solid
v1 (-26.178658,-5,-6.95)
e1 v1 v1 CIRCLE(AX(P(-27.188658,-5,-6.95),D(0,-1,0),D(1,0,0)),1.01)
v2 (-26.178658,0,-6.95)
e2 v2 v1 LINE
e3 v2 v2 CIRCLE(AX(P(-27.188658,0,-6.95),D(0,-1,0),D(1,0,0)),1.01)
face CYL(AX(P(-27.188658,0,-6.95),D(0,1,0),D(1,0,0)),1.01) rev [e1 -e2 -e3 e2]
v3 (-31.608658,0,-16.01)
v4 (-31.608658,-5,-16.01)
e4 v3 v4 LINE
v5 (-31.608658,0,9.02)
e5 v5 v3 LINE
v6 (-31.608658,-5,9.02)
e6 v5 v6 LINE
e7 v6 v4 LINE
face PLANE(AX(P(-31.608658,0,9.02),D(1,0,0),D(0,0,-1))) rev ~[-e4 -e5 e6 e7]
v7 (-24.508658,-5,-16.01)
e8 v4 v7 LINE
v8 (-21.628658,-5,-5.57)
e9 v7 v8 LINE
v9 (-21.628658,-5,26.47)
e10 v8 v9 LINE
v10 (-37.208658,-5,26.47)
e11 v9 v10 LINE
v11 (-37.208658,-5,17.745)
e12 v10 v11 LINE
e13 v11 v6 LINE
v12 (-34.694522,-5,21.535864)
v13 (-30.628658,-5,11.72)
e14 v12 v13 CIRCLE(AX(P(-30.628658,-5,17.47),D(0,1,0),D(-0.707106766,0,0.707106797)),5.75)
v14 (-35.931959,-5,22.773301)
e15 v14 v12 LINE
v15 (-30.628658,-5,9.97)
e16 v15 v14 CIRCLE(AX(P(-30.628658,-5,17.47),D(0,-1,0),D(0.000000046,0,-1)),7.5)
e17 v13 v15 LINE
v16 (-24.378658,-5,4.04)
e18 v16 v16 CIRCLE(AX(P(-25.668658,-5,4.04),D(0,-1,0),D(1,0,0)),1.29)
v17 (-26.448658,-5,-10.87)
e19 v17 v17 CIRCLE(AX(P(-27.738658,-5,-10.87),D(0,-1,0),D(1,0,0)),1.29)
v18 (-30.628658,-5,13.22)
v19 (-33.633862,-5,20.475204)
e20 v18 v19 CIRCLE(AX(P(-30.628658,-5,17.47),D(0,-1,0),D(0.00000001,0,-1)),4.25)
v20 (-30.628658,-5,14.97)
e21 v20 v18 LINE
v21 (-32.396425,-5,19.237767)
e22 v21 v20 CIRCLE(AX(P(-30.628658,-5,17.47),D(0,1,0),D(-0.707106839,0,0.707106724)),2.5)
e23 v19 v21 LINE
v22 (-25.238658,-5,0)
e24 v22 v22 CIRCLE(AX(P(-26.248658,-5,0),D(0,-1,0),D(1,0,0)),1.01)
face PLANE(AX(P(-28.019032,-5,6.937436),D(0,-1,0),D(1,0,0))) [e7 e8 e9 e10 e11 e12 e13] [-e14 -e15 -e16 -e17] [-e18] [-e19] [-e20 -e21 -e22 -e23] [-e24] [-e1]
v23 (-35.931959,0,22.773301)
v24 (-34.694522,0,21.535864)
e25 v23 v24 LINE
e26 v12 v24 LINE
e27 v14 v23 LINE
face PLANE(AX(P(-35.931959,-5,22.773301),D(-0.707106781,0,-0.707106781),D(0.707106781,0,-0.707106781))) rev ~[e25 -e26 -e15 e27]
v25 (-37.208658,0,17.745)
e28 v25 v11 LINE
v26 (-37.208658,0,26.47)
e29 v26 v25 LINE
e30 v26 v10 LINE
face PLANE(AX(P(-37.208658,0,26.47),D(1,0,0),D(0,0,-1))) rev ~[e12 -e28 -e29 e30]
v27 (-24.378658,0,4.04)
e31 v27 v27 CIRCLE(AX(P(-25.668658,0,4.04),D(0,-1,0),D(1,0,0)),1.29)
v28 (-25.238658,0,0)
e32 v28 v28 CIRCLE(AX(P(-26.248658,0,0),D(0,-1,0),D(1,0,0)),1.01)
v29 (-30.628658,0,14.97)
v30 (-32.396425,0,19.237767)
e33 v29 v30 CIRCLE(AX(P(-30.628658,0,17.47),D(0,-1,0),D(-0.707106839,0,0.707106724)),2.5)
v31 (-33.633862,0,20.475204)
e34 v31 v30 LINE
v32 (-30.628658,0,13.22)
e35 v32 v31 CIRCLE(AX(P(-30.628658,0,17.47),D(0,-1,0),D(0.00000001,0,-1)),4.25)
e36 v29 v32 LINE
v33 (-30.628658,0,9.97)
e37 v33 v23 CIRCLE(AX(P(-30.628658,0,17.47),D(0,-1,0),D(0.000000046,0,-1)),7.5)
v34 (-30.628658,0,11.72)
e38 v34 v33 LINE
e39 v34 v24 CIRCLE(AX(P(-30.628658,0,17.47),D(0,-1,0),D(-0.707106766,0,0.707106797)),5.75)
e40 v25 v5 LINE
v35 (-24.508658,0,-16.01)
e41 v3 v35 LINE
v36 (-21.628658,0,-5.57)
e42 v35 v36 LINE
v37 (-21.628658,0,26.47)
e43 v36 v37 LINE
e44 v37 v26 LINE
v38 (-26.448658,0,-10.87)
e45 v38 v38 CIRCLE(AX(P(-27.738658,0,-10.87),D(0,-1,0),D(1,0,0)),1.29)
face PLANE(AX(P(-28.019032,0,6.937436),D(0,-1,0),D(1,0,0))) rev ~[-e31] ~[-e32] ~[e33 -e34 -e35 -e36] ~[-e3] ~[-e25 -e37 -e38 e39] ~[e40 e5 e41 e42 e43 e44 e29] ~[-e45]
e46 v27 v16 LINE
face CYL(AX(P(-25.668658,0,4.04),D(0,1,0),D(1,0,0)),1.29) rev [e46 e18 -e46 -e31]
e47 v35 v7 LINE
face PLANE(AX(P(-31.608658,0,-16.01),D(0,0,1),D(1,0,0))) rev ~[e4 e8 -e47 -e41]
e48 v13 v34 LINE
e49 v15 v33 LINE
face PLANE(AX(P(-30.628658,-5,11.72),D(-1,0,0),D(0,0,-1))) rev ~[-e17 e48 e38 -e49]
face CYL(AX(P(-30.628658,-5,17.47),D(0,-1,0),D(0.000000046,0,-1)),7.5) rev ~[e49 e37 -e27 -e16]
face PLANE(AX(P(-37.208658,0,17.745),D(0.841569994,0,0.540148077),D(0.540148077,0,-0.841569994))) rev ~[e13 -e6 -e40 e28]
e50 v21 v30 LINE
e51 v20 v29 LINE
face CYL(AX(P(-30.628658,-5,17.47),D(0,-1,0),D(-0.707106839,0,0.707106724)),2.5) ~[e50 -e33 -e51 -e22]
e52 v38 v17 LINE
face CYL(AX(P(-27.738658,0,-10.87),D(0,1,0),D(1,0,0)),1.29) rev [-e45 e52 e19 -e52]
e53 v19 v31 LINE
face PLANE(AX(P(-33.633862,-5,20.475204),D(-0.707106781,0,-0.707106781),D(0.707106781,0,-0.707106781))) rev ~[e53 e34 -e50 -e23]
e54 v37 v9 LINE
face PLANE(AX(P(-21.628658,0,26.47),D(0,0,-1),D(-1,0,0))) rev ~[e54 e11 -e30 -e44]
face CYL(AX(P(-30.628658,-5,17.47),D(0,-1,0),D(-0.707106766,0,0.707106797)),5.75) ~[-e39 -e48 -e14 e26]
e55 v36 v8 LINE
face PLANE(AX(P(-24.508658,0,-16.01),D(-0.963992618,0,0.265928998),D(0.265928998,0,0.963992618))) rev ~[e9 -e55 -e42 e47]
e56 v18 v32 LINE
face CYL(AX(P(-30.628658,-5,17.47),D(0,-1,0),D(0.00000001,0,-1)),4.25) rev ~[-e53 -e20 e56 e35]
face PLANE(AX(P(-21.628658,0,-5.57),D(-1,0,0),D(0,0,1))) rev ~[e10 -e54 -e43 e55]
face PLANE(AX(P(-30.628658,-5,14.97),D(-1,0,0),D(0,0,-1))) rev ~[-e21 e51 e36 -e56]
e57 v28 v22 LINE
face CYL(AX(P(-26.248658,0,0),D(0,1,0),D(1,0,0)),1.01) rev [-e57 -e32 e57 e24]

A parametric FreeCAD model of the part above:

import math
import FreeCAD as App
import Part
import Sketcher

V = App.Vector
Q = App.Units.Quantity


def add_polygon(sketch, points):
    """Adds a closed chain of lines whose ends are joined by coincident constraints."""
    first, n = sketch.GeometryCount, len(points)
    for a, b in zip(points, points[1:] + points[:1]):
        sketch.addGeometry(Part.LineSegment(App.Vector(*a, 0), App.Vector(*b, 0)), False)
    for i in range(n):
        sketch.addConstraint(Sketcher.Constraint("Coincident", first + i, 2, first + (i + 1) % n, 1))

doc = App.newDocument("Part")
body = doc.addObject("PartDesign::Body", "Body")

# Sketch on XZ plane
sketch1 = body.newObject("Sketcher::SketchObject", "Sketch")
sketch1.AttachmentSupport = (doc.getObject("XZ_Plane"), [""])
sketch1.MapMode = "FlatFace"
add_polygon(sketch1, [(-21.6, 26.5), (-37.2, 26.5), (-37.2, 17.7), (-31.6, 9), (-31.6, -16), (-24.5, -16), (-21.6, -5.6)])  # lines 0-6
sketch1.addGeometry(Part.Circle(V(-27.7, -10.9, 0), V(0, 0, 1), 1.3), False)  # 7
sketch1.addGeometry(Part.Circle(V(-27.2, -7, 0), V(0, 0, 1), 1), False)  # 8
sketch1.addGeometry(Part.Circle(V(-26.2, 0, 0), V(0, 0, 1), 1), False)  # 9
sketch1.addGeometry(Part.Circle(V(-25.7, 4, 0), V(0, 0, 1), 1.3), False)  # 10
sketch1.addConstraint([
    Sketcher.Constraint("Horizontal", 0),
    Sketcher.Constraint("Vertical", 1),
    Sketcher.Constraint("Vertical", 3),
    Sketcher.Constraint("Horizontal", 4),
    Sketcher.Constraint("Vertical", 6),
    Sketcher.Constraint("Equal", 8, 9),
    Sketcher.Constraint("Equal", 7, 10),
    Sketcher.Constraint("PointOnObject", 9, 3, -1),
    Sketcher.Constraint("Diameter", 7, Q("2.58 mm")),
    Sketcher.Constraint("Diameter", 8, Q("2.02 mm")),
    Sketcher.Constraint("DistanceX", 4, 1, 4, 2, Q("7.1 mm")),
    Sketcher.Constraint("DistanceX", 0, 2, 0, 1, Q("15.58 mm")),
    Sketcher.Constraint("DistanceY", 3, 2, 3, 1, Q("25.03 mm")),
    Sketcher.Constraint("DistanceY", 6, 1, 6, 2, Q("32.04 mm")),
    Sketcher.Constraint("DistanceX", 1, 2, 2, 2, Q("5.6 mm")),
    Sketcher.Constraint("DistanceY", 7, 3, 5, 2, Q("5.3 mm")),
    Sketcher.Constraint("DistanceY", 1, 2, 1, 1, Q("8.725 mm")),
    Sketcher.Constraint("DistanceY", 7, 3, -1, 1, Q("10.87 mm")),
    Sketcher.Constraint("DistanceY", 8, 3, -1, 1, Q("6.95 mm")),
    Sketcher.Constraint("DistanceY", -1, 1, 10, 3, Q("4.04 mm")),
    Sketcher.Constraint("DistanceY", -1, 1, 2, 2, Q("9.02 mm")),
    Sketcher.Constraint("DistanceX", 7, 3, 8, 3, Q("0.55 mm")),
    Sketcher.Constraint("DistanceX", 8, 3, 9, 3, Q("0.94 mm")),
    Sketcher.Constraint("DistanceX", 9, 3, 10, 3, Q("0.58 mm")),
    Sketcher.Constraint("DistanceX", 0, 2, 10, 3, Q("11.54 mm")),
    Sketcher.Constraint("DistanceX", 7, 3, -1, 1, Q("27.738658 mm")),
])
pad1 = body.newObject("PartDesign::Pad", "Pad")
pad1.Profile = sketch1
pad1.Length = 5

# Sketch on XZ plane
sketch2 = body.newObject("Sketcher::SketchObject", "Sketch001")
sketch2.AttachmentSupport = (doc.getObject("XZ_Plane"), [""])
sketch2.MapMode = "FlatFace"
sketch2.AttachmentOffset = App.Placement(V(0, 0, 5), App.Rotation())
sketch2.addGeometry([
    Part.ArcOfCircle(Part.Circle(V(-30.6, 17.5, 0), V(0, 0, 1), 2.5), math.radians(-90), math.radians(135)),  # 0
    Part.LineSegment(V(-30.6, 15, 0), V(-30.6, 13.2, 0)),  # 1
    Part.ArcOfCircle(Part.Circle(V(-30.6, 17.5, 0), V(0, 0, 1), 4.3), math.radians(-90), math.radians(135)),  # 2
    Part.LineSegment(V(-33.6, 20.5, 0), V(-32.4, 19.2, 0)),  # 3
    Part.ArcOfCircle(Part.Circle(V(-30.6, 17.5, 0), V(0, 0, 1), 5.7), math.radians(-90), math.radians(135)),  # 4
    Part.LineSegment(V(-30.6, 11.7, 0), V(-30.6, 10, 0)),  # 5
    Part.ArcOfCircle(Part.Circle(V(-30.6, 17.5, 0), V(0, 0, 1), 7.5), math.radians(-90), math.radians(135)),  # 6
    Part.LineSegment(V(-35.9, 22.8, 0), V(-34.7, 21.5, 0)),  # 7
], False)
sketch2.addConstraint([
    Sketcher.Constraint("Coincident", 0, 1, 1, 1),
    Sketcher.Constraint("Coincident", 1, 2, 2, 1),
    Sketcher.Constraint("Coincident", 2, 2, 3, 1),
    Sketcher.Constraint("Coincident", 3, 2, 0, 2),
    Sketcher.Constraint("Coincident", 4, 1, 5, 1),
    Sketcher.Constraint("Coincident", 5, 2, 6, 1),
    Sketcher.Constraint("Coincident", 6, 2, 7, 1),
    Sketcher.Constraint("Coincident", 7, 2, 4, 2),
    Sketcher.Constraint("Vertical", 1),
    Sketcher.Constraint("Vertical", 5),
    Sketcher.Constraint("Coincident", 2, 3, 0, 3),
    Sketcher.Constraint("Coincident", 4, 3, 0, 3),
    Sketcher.Constraint("Coincident", 6, 3, 0, 3),
    Sketcher.Constraint("Parallel", 3, 7),
    Sketcher.Constraint("Vertical", 6, 3, 0, 1),
    Sketcher.Constraint("Vertical", 1, 2, 4, 1),
    Sketcher.Constraint("Equal", 1, 5),
    Sketcher.Constraint("Radius", 0, Q("2.5 mm")),
    Sketcher.Constraint("Radius", 6, Q("7.5 mm")),
    Sketcher.Constraint("Angle", 3, Q("-45 deg")),
    Sketcher.Constraint("Radius", 2, Q("4.25 mm")),
    Sketcher.Constraint("DistanceY", -1, 1, 0, 3, Q("17.47 mm")),
    Sketcher.Constraint("DistanceY", -1, 1, 6, 2, Q("22.773301 mm")),
    Sketcher.Constraint("DistanceX", 2, 3, -1, 1, Q("30.628658 mm")),
    Sketcher.Constraint("DistanceX", 2, 2, -1, 1, Q("33.633862 mm")),
])
pocket1 = body.newObject("PartDesign::Pocket", "Pocket")
pocket1.Profile = sketch2
pocket1.Type = "ThroughAll"

doc.recompute()
